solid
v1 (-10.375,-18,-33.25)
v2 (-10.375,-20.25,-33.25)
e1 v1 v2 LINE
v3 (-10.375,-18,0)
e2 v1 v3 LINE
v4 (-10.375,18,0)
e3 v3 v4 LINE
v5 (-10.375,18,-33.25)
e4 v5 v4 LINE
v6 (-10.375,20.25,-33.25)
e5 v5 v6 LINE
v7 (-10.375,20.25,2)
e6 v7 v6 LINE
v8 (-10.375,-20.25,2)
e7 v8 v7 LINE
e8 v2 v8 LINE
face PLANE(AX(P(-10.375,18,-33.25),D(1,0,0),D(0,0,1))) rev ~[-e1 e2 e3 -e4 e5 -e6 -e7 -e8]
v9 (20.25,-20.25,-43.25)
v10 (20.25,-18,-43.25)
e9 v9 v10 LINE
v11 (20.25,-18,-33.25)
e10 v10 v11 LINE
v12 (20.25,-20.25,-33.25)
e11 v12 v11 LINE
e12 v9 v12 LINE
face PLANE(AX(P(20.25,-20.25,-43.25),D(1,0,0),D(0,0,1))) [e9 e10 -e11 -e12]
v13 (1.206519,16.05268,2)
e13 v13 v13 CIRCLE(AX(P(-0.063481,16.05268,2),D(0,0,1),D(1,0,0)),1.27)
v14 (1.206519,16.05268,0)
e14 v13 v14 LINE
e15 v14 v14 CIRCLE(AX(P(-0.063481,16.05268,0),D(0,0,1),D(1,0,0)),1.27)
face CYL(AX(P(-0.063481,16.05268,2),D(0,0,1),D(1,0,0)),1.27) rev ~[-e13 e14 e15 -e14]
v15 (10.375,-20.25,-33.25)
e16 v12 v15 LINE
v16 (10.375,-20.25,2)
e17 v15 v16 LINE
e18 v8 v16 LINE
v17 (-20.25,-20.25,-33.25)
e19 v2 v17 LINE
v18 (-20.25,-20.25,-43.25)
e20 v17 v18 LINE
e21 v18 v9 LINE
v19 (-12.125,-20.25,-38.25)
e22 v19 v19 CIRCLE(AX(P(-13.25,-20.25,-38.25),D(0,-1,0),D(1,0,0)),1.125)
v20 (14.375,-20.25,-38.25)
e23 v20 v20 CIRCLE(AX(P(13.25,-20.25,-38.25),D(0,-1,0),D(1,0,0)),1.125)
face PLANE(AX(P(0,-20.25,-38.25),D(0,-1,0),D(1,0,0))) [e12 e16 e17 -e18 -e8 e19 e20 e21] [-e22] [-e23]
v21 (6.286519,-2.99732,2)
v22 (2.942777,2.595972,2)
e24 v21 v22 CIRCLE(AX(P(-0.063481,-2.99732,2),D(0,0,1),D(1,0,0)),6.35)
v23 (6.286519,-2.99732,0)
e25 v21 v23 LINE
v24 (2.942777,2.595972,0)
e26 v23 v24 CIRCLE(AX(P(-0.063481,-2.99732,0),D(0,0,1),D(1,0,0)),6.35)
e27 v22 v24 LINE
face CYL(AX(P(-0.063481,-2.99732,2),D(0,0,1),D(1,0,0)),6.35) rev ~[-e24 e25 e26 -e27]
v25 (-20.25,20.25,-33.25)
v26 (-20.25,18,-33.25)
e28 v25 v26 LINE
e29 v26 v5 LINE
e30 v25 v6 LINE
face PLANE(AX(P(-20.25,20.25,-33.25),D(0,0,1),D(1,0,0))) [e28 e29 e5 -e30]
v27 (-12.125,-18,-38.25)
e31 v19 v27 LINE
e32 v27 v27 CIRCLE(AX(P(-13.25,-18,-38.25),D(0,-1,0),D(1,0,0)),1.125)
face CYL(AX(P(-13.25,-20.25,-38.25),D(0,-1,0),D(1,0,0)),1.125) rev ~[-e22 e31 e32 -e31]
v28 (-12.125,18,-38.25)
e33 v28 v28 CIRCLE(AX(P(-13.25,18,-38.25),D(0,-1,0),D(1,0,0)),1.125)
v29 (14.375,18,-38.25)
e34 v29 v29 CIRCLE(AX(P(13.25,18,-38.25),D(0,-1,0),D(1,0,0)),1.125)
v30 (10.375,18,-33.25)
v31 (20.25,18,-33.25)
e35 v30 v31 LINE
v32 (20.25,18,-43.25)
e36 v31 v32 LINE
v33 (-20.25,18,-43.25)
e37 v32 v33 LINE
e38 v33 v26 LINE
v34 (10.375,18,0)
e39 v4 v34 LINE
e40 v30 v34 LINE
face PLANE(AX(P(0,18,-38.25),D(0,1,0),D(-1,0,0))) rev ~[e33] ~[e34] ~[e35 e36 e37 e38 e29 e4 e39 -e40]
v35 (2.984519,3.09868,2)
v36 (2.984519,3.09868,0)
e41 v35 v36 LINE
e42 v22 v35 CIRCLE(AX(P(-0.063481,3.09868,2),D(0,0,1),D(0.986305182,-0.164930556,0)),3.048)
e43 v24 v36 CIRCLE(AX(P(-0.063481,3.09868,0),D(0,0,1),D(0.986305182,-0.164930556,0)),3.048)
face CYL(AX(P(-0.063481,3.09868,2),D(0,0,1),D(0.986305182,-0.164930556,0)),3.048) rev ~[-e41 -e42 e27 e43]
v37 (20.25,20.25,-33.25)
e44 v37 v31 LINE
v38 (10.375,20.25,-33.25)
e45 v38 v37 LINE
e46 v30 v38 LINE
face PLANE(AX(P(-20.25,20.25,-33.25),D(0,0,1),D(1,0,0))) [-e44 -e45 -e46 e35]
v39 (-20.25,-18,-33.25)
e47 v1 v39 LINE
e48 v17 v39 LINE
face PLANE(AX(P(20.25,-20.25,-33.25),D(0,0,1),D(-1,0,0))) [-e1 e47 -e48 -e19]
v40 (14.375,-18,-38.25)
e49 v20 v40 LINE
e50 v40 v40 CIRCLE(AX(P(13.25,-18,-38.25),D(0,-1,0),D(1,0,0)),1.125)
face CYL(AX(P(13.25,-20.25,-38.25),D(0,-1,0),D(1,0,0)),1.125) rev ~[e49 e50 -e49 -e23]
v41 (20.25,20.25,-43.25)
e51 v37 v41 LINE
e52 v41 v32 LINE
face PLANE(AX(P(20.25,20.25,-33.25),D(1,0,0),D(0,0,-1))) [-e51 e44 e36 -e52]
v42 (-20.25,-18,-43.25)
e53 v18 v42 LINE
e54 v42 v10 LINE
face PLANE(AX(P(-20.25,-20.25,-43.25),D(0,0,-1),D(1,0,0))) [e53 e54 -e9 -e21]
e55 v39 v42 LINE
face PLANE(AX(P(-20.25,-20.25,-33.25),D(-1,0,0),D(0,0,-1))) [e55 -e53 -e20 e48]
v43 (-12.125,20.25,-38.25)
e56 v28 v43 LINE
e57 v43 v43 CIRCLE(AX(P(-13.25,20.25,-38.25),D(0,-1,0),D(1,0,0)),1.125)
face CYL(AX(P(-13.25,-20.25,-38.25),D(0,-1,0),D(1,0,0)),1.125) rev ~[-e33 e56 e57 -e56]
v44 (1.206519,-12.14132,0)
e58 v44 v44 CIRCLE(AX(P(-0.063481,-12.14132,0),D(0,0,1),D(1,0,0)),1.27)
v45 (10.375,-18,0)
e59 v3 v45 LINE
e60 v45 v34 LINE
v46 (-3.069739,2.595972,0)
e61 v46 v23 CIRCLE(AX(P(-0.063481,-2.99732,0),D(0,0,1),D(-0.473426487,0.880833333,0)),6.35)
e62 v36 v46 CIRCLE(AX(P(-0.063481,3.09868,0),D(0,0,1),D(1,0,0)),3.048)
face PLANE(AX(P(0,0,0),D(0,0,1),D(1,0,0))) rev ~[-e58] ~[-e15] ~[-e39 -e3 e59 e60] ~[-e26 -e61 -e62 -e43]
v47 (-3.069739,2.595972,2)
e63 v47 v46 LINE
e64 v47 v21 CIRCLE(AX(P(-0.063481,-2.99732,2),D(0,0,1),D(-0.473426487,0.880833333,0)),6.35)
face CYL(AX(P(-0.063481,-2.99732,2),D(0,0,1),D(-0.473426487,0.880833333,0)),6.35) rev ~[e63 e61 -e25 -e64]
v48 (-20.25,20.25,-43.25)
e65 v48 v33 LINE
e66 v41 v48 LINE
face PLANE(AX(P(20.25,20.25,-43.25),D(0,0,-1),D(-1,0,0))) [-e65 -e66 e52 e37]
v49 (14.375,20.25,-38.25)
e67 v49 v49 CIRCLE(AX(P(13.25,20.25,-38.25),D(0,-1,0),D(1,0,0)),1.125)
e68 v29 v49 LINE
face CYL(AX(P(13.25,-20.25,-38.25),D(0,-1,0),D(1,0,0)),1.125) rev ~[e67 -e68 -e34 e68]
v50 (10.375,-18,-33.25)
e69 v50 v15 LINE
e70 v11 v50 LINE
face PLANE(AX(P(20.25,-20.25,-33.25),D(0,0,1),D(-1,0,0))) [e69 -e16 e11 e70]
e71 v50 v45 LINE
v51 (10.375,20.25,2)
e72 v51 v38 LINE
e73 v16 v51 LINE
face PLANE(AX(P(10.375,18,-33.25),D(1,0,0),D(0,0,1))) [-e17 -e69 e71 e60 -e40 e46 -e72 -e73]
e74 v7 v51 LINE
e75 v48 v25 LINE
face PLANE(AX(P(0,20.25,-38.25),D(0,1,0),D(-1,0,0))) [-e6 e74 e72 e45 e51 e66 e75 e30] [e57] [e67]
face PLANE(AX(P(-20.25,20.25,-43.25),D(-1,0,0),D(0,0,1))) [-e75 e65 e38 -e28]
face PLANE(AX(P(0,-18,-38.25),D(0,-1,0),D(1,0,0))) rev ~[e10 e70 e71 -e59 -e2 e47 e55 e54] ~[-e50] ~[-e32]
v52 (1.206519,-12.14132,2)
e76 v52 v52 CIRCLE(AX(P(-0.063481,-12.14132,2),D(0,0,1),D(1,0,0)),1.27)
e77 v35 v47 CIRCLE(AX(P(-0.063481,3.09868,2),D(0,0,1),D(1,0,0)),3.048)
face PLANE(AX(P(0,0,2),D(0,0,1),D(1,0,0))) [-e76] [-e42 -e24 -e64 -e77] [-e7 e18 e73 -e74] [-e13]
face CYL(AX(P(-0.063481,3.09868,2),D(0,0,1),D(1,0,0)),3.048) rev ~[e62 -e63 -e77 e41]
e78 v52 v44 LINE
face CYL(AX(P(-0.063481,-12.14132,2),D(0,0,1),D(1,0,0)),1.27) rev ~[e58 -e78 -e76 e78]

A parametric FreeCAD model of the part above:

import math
import FreeCAD as App
import Part
import Sketcher


def add_polygon(sketch, points):
    """Adds a closed chain of lines whose ends are joined by coincident constraints."""
    first, n = sketch.GeometryCount, len(points)
    for a, b in zip(points, points[1:] + points[:1]):
        sketch.addGeometry(Part.LineSegment(App.Vector(*a, 0), App.Vector(*b, 0)), False)
    for i in range(n):
        sketch.addConstraint(Sketcher.Constraint("Coincident", first + i, 2, first + (i + 1) % n, 1))

doc = App.newDocument("Part")
params = doc.addObject("Spreadsheet::Sheet", "Params")
for row, (alias, value) in enumerate([
    ("sketch1_height", "40.5 mm"),
    ("sketch1_width", "20.75 mm"),
    ("pad1_length", "2 mm"),
    ("sketch2_width", "20.75 mm"),
    ("sketch2_height", "33.25 mm"),
    ("pad2_length", "2.25 mm"),
    ("sketch3_width", "20.75 mm"),
    ("sketch3_height", "33.25 mm"),
    ("pad3_length", "2.25 mm"),
    ("sketch4_height", "10 mm"),
    ("sketch4_width", "40.5 mm"),
    ("pad4_length", "2.25 mm"),
    ("sketch5_height", "10 mm"),
    ("sketch5_width", "40.5 mm"),
    ("pad5_length", "2.25 mm"),
    ("sketch6_diameter", "2.25 mm"),
    ("sketch7_diameter", "2.54 mm"),
    ("sketch7_radius", "6.35 mm"),
], start=1):
    params.set(f"A{row}", alias)
    params.set(f"B{row}", "=" + value)
    params.setAlias(f"B{row}", alias)

body = doc.addObject("PartDesign::Body", "Body")

sketch1 = body.newObject("Sketcher::SketchObject", "Sketch")
sketch1.AttachmentSupport = (doc.getObject("XY_Plane"), [""])
sketch1.MapMode = "FlatFace"
add_polygon(sketch1, [(-10, 20), (-10, -20), (10, -20), (10, 20)])
sketch1.addConstraint(Sketcher.Constraint("Vertical", 0))
sketch1.addConstraint(Sketcher.Constraint("Horizontal", 1))
sketch1.addConstraint(Sketcher.Constraint("Vertical", 2))
sketch1.addConstraint(Sketcher.Constraint("Horizontal", 3))
sketch1.addConstraint(Sketcher.Constraint("Symmetric", 0, 2, 2, 2, -1, 1))
sketch1.addConstraint(Sketcher.Constraint("DistanceY", 0, 2, 0, 1, 40.5))
sketch1.addConstraint(Sketcher.Constraint("DistanceX", 1, 1, 1, 2, 20.75))
sketch1.setExpression("Constraints[9]", "Params.sketch1_height")
sketch1.setExpression("Constraints[10]", "Params.sketch1_width")
pad1 = body.newObject("PartDesign::Pad", "Pad")
pad1.Profile = sketch1
pad1.setExpression("Length", "Params.pad1_length")

sketch2 = body.newObject("Sketcher::SketchObject", "Sketch001")
sketch2.AttachmentSupport = (doc.getObject("XZ_Plane"), [""])
sketch2.MapMode = "FlatFace"
sketch2.AttachmentOffset = App.Placement(App.Vector(0, 0, 18), App.Rotation())
add_polygon(sketch2, [(-10, 0), (-10, -33), (10, -33), (10, 0)])
sketch2.addConstraint(Sketcher.Constraint("Vertical", 0))
sketch2.addConstraint(Sketcher.Constraint("Horizontal", 1))
sketch2.addConstraint(Sketcher.Constraint("Vertical", 2))
sketch2.addConstraint(Sketcher.Constraint("Horizontal", 3))
sketch2.addConstraint(Sketcher.Constraint("Symmetric", 2, 2, 3, 2, -1, 1))
sketch2.addConstraint(Sketcher.Constraint("DistanceX", 1, 1, 1, 2, 20.75))
sketch2.addConstraint(Sketcher.Constraint("DistanceY", 0, 2, 0, 1, 33.25))
sketch2.setExpression("Constraints[9]", "Params.sketch2_width")
sketch2.setExpression("Constraints[10]", "Params.sketch2_height")
pad2 = body.newObject("PartDesign::Pad", "Pad001")
pad2.Profile = sketch2
pad2.setExpression("Length", "Params.pad2_length")

sketch3 = body.newObject("Sketcher::SketchObject", "Sketch002")
sketch3.AttachmentSupport = (doc.getObject("XZ_Plane"), [""])
sketch3.MapMode = "FlatFace"
sketch3.AttachmentOffset = App.Placement(App.Vector(0, 0, -18), App.Rotation())
add_polygon(sketch3, [(-10, 0), (-10, -33), (10, -33), (10, 0)])
sketch3.addConstraint(Sketcher.Constraint("Vertical", 0))
sketch3.addConstraint(Sketcher.Constraint("Horizontal", 1))
sketch3.addConstraint(Sketcher.Constraint("Vertical", 2))
sketch3.addConstraint(Sketcher.Constraint("Horizontal", 3))
sketch3.addConstraint(Sketcher.Constraint("Symmetric", 2, 2, 3, 2, -1, 1))
sketch3.addConstraint(Sketcher.Constraint("DistanceX", 1, 1, 1, 2, 20.75))
sketch3.addConstraint(Sketcher.Constraint("DistanceY", 0, 2, 0, 1, 33.25))
sketch3.setExpression("Constraints[9]", "Params.sketch3_width")
sketch3.setExpression("Constraints[10]", "Params.sketch3_height")
pad3 = body.newObject("PartDesign::Pad", "Pad002")
pad3.Profile = sketch3
pad3.setExpression("Length", "Params.pad3_length")
pad3.Reversed = True

sketch4 = body.newObject("Sketcher::SketchObject", "Sketch003")
sketch4.AttachmentSupport = (doc.getObject("XZ_Plane"), [""])
sketch4.MapMode = "FlatFace"
sketch4.AttachmentOffset = App.Placement(App.Vector(0, 0, -20.25), App.Rotation())
add_polygon(sketch4, [(20, -33), (20, -43), (-20, -43), (-20, -33)])
sketch4.addConstraint(Sketcher.Constraint("Vertical", 0))
sketch4.addConstraint(Sketcher.Constraint("Horizontal", 1))
sketch4.addConstraint(Sketcher.Constraint("Vertical", 2))
sketch4.addConstraint(Sketcher.Constraint("Horizontal", 3))
sketch4.addConstraint(Sketcher.Constraint("DistanceY", 0, 2, 0, 1, 10.0))
sketch4.addConstraint(Sketcher.Constraint("DistanceX", 1, 2, 1, 1, 40.5))
sketch4.addConstraint(Sketcher.Constraint("DistanceX", -1, 1, 0, 2, 20.25))
sketch4.addConstraint(Sketcher.Constraint("DistanceY", 0, 2, -1, 1, 43.25))
sketch4.setExpression("Constraints[8]", "Params.sketch4_height")
sketch4.setExpression("Constraints[9]", "Params.sketch4_width")
pad4 = body.newObject("PartDesign::Pad", "Pad003")
pad4.Profile = sketch4
pad4.setExpression("Length", "Params.pad4_length")

sketch5 = body.newObject("Sketcher::SketchObject", "Sketch004")
sketch5.AttachmentSupport = (doc.getObject("XZ_Plane"), [""])
sketch5.MapMode = "FlatFace"
sketch5.AttachmentOffset = App.Placement(App.Vector(0, 0, 20.25), App.Rotation())
add_polygon(sketch5, [(-20, -33), (-20, -43), (20, -43), (20, -33)])
sketch5.addConstraint(Sketcher.Constraint("Vertical", 0))
sketch5.addConstraint(Sketcher.Constraint("Horizontal", 1))
sketch5.addConstraint(Sketcher.Constraint("Vertical", 2))
sketch5.addConstraint(Sketcher.Constraint("Horizontal", 3))
sketch5.addConstraint(Sketcher.Constraint("DistanceY", 0, 2, 0, 1, 10.0))
sketch5.addConstraint(Sketcher.Constraint("DistanceX", 1, 1, 1, 2, 40.5))
sketch5.addConstraint(Sketcher.Constraint("DistanceX", 0, 2, -1, 1, 20.25))
sketch5.addConstraint(Sketcher.Constraint("DistanceY", 0, 2, -1, 1, 43.25))
sketch5.setExpression("Constraints[8]", "Params.sketch5_height")
sketch5.setExpression("Constraints[9]", "Params.sketch5_width")
pad5 = body.newObject("PartDesign::Pad", "Pad004")
pad5.Profile = sketch5
pad5.setExpression("Length", "Params.pad5_length")
pad5.Reversed = True

sketch6 = body.newObject("Sketcher::SketchObject", "Sketch005")
sketch6.AttachmentSupport = (doc.getObject("XZ_Plane"), [""])
sketch6.MapMode = "FlatFace"
sketch6.AttachmentOffset = App.Placement(App.Vector(0, 0, 20.25), App.Rotation())
sketch6.addGeometry(Part.Circle(App.Vector(-13.2, -38.2, 0), App.Vector(0, 0, 1), 1.1), False)
sketch6.addGeometry(Part.Circle(App.Vector(13.2, -38.2, 0), App.Vector(0, 0, 1), 1.1), False)
sketch6.addConstraint(Sketcher.Constraint("Equal", 0, 1))
sketch6.addConstraint(Sketcher.Constraint("Symmetric", 0, 3, 1, 3, -2))
sketch6.addConstraint(Sketcher.Constraint("Diameter", 0, 2.25))
sketch6.addConstraint(Sketcher.Constraint("DistanceX", 0, 3, 1, 3, 26.5))
sketch6.addConstraint(Sketcher.Constraint("DistanceY", 0, 3, -1, 1, 38.25))
sketch6.setExpression("Constraints[2]", "Params.sketch6_diameter")
pocket1 = body.newObject("PartDesign::Pocket", "Pocket")
pocket1.Profile = sketch6
pocket1.Type = "ThroughAll"

sketch7 = body.newObject("Sketcher::SketchObject", "Sketch006")
sketch7.AttachmentSupport = (doc.getObject("XY_Plane"), [""])
sketch7.MapMode = "FlatFace"
sketch7.AttachmentOffset = App.Placement(App.Vector(0, 0, 2), App.Rotation())
sketch7.addGeometry(Part.ArcOfCircle(Part.Circle(App.Vector(-0.1, -3, 0), App.Vector(0, 0, 1), 6.3), math.radians(118), math.radians(360)), False)
sketch7.addGeometry(Part.ArcOfCircle(Part.Circle(App.Vector(-0.1, -3, 0), App.Vector(0, 0, 1), 6.3), math.radians(0), math.radians(62)), False)
sketch7.addGeometry(Part.ArcOfCircle(Part.Circle(App.Vector(-0.1, 3.1, 0), App.Vector(0, 0, 1), 3), math.radians(-9.49), math.radians(0)), False)
sketch7.addGeometry(Part.ArcOfCircle(Part.Circle(App.Vector(-0.1, 3.1, 0), App.Vector(0, 0, 1), 3), math.radians(0), math.radians(189)), False)
sketch7.addGeometry(Part.Circle(App.Vector(-0.1, -12.1, 0), App.Vector(0, 0, 1), 1.3), False)
sketch7.addGeometry(Part.Circle(App.Vector(-0.1, 16.1, 0), App.Vector(0, 0, 1), 1.3), False)
sketch7.addConstraint(Sketcher.Constraint("Tangent", 0, 2, 1, 1))
sketch7.addConstraint(Sketcher.Constraint("Coincident", 1, 2, 2, 1))
sketch7.addConstraint(Sketcher.Constraint("Tangent", 2, 2, 3, 1))
sketch7.addConstraint(Sketcher.Constraint("Coincident", 3, 2, 0, 1))
sketch7.addConstraint(Sketcher.Constraint("Equal", 0, 1))
sketch7.addConstraint(Sketcher.Constraint("Equal", 2, 3))
sketch7.addConstraint(Sketcher.Constraint("Equal", 4, 5))
sketch7.addConstraint(Sketcher.Constraint("Horizontal", 1, 3, 0, 2))
sketch7.addConstraint(Sketcher.Constraint("Horizontal", 3, 3, 2, 2))
sketch7.addConstraint(Sketcher.Constraint("Horizontal", 1, 2, 3, 2))
sketch7.addConstraint(Sketcher.Constraint("Vertical", 3, 3, 4, 3))
sketch7.addConstraint(Sketcher.Constraint("Vertical", 4, 3, 5, 3))
sketch7.addConstraint(Sketcher.Constraint("Diameter", 4, 2.54))
sketch7.addConstraint(Sketcher.Constraint("Radius", 0, 6.35))
sketch7.addConstraint(Sketcher.Constraint("Radius", 2, 3.048))
sketch7.addConstraint(Sketcher.Constraint("DistanceY", 4, 3, 2, 3, 15.24))
sketch7.addConstraint(Sketcher.Constraint("DistanceY", 0, 3, 5, 3, 19.05))
sketch7.addConstraint(Sketcher.Constraint("DistanceY", 0, 3, 2, 3, 6.096))
sketch7.addConstraint(Sketcher.Constraint("DistanceX", 0, 3, -1, 1, 0.063481))
sketch7.addConstraint(Sketcher.Constraint("DistanceY", 0, 3, -1, 1, 2.99732))
sketch7.setExpression("Constraints[12]", "Params.sketch7_diameter")
sketch7.setExpression("Constraints[13]", "Params.sketch7_radius")
pocket2 = body.newObject("PartDesign::Pocket", "Pocket001")
pocket2.Profile = sketch7
pocket2.Type = "ThroughAll"

doc.recompute()
